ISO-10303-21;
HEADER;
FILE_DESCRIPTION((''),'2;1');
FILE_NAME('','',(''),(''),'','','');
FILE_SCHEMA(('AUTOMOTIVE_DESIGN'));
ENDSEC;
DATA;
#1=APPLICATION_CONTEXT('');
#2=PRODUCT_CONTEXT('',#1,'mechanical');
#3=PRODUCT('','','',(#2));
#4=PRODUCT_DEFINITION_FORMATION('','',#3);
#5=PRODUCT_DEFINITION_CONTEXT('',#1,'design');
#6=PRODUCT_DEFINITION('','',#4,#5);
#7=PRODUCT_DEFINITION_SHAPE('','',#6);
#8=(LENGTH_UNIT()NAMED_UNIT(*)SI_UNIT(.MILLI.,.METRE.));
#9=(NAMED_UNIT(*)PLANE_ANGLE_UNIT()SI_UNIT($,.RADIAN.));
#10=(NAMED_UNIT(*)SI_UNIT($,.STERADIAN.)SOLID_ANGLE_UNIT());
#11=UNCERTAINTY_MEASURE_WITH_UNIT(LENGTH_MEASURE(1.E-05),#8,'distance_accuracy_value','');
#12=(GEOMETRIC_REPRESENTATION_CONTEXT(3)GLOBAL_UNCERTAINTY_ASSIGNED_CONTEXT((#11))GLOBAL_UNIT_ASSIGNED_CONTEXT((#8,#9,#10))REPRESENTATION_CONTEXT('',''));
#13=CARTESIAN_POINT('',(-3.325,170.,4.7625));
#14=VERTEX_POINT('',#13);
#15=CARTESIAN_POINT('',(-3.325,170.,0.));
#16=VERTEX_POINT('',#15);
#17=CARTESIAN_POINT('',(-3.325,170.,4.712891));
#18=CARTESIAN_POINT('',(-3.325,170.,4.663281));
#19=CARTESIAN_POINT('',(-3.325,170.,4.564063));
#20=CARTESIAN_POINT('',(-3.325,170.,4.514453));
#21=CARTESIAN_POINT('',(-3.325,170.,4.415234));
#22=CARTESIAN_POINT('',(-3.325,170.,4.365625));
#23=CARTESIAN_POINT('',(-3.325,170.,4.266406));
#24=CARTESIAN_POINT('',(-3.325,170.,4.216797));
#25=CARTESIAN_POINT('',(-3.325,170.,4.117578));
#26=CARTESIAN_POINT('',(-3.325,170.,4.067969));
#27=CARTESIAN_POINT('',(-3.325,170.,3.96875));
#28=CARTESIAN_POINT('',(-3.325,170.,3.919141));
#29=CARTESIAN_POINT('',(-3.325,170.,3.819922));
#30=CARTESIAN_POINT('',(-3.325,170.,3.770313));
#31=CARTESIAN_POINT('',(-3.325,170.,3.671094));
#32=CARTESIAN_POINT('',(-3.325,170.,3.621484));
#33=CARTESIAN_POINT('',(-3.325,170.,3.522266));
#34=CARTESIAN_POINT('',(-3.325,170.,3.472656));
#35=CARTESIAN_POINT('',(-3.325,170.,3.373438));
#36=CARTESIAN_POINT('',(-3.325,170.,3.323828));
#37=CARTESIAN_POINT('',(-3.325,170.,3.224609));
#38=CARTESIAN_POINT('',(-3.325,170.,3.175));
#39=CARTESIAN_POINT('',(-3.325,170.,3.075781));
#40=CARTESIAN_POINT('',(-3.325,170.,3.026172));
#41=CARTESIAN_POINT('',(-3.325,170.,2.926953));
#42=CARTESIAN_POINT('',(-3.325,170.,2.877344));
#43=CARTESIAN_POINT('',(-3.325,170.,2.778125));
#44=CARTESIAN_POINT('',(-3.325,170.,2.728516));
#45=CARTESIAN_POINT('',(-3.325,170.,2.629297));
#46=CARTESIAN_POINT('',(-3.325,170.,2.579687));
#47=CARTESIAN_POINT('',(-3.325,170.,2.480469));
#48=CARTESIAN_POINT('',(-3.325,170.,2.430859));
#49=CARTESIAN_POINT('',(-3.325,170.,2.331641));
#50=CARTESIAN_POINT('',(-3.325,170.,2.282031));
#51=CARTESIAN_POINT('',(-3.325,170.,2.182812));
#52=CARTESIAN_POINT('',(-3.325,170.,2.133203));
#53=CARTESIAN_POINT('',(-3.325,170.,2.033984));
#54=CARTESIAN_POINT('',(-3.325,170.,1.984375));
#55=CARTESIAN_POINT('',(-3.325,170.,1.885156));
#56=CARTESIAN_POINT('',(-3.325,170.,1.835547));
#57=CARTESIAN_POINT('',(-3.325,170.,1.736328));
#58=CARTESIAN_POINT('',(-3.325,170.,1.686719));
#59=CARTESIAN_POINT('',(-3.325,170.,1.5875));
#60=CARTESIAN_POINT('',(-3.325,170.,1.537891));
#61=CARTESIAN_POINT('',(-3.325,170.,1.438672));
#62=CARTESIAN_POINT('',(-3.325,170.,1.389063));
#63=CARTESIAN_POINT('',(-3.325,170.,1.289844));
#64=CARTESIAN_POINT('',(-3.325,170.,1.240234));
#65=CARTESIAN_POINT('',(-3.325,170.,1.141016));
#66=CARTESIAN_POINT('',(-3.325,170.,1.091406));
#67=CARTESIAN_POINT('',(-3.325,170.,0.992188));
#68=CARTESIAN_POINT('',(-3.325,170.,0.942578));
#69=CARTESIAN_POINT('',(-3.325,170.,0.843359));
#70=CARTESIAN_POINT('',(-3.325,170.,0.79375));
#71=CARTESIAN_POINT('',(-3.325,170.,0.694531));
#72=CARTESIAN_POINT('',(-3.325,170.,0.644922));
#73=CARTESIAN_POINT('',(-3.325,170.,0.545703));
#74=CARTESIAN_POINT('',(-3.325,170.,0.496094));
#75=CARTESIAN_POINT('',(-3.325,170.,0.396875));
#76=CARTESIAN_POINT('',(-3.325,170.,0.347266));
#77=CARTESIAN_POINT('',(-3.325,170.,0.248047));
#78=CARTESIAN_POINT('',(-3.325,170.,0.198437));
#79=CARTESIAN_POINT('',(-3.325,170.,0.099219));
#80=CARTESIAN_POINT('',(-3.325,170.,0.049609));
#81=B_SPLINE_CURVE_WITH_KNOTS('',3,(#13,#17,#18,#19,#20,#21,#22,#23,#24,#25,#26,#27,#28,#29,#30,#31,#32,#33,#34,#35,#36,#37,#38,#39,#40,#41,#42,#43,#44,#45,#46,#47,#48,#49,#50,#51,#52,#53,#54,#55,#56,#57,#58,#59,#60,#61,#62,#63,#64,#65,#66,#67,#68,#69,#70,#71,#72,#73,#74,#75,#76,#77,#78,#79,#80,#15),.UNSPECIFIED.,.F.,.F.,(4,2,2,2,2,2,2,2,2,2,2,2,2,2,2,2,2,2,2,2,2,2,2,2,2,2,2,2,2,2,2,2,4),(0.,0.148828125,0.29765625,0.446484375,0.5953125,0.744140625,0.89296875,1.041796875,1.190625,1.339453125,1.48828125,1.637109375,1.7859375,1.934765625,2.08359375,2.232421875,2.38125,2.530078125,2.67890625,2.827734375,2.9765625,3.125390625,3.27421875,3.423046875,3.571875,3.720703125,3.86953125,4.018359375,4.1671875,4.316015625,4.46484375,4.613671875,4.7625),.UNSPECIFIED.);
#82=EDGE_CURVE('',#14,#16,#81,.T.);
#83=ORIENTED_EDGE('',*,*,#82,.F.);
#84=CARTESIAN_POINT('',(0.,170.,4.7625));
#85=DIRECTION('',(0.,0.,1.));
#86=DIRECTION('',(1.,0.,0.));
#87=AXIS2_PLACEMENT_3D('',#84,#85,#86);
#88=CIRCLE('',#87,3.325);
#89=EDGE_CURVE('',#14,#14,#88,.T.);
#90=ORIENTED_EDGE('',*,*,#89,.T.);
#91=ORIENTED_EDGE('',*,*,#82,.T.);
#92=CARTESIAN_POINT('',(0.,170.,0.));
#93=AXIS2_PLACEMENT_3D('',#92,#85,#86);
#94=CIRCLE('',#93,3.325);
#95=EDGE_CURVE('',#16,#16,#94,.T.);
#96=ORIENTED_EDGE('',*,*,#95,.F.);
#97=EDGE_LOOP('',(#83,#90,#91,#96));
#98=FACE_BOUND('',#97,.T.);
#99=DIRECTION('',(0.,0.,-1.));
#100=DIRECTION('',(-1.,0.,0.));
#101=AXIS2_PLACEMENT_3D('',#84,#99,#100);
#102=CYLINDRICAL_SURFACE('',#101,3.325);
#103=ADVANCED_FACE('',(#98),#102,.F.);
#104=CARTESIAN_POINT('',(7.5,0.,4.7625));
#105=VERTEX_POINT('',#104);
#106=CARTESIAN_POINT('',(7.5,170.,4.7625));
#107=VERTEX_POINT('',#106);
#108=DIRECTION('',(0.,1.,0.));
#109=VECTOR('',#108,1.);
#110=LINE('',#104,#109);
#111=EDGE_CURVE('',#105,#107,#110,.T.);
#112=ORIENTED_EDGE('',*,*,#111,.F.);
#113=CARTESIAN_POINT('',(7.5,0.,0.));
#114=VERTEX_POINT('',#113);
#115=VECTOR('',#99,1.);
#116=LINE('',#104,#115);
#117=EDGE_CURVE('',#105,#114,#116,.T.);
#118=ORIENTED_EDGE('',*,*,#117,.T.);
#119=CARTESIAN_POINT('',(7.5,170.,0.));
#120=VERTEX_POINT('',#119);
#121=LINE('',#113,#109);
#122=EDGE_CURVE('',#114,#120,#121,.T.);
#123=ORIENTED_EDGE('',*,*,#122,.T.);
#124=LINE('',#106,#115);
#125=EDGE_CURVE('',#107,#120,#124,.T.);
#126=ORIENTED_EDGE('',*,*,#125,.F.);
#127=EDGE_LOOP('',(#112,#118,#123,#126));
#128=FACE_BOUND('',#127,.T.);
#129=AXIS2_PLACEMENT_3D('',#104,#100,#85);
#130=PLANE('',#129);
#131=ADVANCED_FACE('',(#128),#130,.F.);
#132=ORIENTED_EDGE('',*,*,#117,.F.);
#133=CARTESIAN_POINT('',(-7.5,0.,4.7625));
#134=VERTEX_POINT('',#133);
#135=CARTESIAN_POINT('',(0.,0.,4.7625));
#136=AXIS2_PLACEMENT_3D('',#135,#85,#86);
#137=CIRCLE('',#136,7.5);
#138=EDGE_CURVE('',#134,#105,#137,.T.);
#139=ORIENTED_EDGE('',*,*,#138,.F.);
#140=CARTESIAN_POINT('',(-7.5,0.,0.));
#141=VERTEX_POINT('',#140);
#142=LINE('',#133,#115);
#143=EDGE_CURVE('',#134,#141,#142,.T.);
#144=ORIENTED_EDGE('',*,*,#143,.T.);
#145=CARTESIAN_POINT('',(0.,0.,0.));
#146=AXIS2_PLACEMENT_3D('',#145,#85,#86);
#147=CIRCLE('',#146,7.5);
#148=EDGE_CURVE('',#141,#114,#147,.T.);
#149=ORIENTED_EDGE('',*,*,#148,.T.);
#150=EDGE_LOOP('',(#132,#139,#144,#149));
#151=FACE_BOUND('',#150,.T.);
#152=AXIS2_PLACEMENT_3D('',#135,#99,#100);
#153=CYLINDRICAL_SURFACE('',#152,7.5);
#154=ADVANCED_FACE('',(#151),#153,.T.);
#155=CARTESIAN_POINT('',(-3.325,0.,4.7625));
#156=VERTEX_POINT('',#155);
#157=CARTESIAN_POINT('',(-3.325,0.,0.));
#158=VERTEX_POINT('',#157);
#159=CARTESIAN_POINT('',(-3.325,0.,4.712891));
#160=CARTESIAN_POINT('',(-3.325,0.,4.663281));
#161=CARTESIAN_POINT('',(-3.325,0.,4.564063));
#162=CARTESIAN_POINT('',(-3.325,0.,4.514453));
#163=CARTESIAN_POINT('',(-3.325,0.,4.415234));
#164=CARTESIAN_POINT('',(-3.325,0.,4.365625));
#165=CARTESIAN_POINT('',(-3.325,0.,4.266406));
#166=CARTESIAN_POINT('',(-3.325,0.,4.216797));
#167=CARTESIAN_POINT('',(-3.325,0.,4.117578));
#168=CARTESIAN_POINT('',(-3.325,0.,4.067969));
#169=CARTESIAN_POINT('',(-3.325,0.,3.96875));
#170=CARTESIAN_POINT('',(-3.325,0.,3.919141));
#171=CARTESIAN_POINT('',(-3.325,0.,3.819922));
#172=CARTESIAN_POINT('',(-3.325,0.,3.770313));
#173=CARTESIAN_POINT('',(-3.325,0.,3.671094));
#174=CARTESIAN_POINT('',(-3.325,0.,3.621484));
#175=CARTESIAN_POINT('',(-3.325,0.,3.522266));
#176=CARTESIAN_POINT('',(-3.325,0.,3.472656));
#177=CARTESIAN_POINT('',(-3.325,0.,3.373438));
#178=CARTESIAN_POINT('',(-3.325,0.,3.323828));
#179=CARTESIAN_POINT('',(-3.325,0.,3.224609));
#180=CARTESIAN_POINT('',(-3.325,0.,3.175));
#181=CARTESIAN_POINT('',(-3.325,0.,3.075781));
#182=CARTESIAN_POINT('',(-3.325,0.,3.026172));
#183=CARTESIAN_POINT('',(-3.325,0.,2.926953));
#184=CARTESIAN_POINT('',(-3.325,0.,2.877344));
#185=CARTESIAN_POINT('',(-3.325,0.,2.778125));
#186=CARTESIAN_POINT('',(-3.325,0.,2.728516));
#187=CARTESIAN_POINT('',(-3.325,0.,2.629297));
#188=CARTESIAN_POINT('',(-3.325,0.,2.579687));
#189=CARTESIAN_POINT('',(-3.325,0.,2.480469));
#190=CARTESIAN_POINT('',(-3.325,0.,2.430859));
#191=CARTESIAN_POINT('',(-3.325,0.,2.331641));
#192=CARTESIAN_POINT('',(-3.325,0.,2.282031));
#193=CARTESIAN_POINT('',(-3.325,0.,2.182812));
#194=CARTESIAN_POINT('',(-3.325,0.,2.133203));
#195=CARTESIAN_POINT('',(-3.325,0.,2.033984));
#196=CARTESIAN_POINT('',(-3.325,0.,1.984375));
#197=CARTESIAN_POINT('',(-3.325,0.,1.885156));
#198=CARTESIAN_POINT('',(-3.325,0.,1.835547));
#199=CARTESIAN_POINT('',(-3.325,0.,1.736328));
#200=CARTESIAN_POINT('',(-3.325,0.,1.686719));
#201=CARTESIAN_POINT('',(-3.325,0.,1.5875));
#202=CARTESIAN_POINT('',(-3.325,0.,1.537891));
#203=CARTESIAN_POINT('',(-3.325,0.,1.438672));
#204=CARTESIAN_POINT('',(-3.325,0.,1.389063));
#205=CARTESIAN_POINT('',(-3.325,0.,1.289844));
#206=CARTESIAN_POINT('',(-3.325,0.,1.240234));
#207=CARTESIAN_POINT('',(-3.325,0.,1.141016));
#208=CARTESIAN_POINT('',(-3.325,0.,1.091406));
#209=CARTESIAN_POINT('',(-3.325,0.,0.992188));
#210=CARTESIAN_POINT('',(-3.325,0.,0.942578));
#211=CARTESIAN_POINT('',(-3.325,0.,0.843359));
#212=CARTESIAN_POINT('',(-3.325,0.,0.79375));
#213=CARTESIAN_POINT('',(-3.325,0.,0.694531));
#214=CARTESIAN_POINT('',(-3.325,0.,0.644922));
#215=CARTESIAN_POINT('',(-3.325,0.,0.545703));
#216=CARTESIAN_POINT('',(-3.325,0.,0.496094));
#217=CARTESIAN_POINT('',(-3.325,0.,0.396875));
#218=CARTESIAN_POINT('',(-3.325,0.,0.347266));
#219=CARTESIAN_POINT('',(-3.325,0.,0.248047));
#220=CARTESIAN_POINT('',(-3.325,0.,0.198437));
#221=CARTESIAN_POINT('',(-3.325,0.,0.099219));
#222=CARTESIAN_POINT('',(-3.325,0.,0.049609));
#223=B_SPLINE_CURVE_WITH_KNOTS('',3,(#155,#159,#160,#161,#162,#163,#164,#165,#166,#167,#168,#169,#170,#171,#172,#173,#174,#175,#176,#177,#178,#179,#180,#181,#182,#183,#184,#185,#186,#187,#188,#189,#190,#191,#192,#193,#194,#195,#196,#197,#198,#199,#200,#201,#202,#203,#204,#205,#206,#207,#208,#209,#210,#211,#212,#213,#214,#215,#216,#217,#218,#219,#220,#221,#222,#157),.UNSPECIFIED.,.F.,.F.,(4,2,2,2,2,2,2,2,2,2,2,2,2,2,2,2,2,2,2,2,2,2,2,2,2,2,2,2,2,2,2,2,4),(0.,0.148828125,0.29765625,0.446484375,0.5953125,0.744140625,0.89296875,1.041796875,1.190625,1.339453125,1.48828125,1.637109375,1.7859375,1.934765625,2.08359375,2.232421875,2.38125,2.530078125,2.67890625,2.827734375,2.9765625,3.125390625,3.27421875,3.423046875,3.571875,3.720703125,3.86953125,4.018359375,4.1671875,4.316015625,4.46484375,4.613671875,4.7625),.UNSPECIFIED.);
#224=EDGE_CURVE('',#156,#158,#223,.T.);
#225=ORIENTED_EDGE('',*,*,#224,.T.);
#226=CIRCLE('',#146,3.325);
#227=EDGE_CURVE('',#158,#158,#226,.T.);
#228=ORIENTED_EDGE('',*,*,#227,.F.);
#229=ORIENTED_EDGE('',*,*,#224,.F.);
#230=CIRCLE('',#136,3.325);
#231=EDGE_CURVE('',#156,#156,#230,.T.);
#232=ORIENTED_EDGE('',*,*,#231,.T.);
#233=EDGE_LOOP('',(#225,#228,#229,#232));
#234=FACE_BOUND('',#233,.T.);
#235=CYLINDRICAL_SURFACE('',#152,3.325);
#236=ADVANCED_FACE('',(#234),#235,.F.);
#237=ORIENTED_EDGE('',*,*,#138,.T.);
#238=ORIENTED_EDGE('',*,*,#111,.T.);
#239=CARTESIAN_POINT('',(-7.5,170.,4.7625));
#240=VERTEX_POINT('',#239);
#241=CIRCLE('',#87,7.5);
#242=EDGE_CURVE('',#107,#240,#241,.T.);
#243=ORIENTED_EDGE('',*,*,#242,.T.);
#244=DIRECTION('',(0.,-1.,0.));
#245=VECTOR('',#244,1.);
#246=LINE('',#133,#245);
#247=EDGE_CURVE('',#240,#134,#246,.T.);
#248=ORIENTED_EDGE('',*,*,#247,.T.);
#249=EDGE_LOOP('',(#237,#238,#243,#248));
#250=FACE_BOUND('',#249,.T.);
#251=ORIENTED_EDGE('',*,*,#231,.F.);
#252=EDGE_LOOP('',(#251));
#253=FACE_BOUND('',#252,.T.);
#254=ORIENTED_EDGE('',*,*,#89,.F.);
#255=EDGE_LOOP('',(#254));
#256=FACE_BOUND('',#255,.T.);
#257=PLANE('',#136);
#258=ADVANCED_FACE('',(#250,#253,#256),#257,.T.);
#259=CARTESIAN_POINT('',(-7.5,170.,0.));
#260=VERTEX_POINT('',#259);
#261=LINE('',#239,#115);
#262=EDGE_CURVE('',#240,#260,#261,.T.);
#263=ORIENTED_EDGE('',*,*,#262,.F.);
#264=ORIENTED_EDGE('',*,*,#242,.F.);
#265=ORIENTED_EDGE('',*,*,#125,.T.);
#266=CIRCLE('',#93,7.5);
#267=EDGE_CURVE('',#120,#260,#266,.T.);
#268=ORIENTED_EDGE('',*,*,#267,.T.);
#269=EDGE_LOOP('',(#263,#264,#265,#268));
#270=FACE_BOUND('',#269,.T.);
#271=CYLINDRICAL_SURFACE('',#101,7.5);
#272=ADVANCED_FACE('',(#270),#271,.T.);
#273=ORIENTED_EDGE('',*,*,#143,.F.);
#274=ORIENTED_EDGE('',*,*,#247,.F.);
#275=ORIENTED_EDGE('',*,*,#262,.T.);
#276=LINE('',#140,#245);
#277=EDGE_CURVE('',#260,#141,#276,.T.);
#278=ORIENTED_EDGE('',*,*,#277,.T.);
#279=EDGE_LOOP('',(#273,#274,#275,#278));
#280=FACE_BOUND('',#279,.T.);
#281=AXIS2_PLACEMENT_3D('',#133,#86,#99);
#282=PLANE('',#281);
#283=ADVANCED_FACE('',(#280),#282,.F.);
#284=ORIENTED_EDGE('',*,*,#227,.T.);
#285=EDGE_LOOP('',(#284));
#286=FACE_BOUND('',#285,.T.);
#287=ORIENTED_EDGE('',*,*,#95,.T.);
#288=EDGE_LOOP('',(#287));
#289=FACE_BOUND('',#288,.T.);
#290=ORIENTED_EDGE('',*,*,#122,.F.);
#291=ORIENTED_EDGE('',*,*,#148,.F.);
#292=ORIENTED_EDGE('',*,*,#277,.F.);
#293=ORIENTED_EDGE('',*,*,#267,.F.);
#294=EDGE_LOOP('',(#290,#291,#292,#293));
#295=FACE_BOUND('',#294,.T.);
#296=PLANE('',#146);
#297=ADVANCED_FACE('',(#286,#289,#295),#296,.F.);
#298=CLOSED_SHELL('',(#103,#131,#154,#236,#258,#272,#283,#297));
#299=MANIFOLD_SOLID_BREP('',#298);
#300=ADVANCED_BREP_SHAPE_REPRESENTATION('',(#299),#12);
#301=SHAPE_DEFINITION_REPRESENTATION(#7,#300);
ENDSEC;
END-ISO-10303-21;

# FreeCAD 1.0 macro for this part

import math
import FreeCAD as App
import Part
import Sketcher
from FreeCAD import Vector
Q = App.Units.Quantity

doc = App.newDocument("Part")
body = doc.addObject("PartDesign::Body", "Body")

sketch1 = body.newObject("Sketcher::SketchObject", "Sketch")
sketch1.AttachmentSupport = (doc.getObject("XY_Plane"), [""])
sketch1.MapMode = "FlatFace"
sketch1.addGeometry(Part.LineSegment(Vector(-7.5, 170, 0), Vector(-7.5, 0, 0)), False)
sketch1.addGeometry(Part.ArcOfCircle(Part.Circle(Vector(0, 0, 0), Vector(0, 0, 1), 7.5), math.radians(180), math.radians(360)), False)
sketch1.addGeometry(Part.LineSegment(Vector(7.5, 0, 0), Vector(7.5, 170, 0)), False)
sketch1.addGeometry(Part.ArcOfCircle(Part.Circle(Vector(0, 170, 0), Vector(0, 0, 1), 7.5), math.radians(0), math.radians(180)), False)
sketch1.addGeometry(Part.Circle(Vector(0, 0, 0), Vector(0, 0, 1), 3.3), False)
sketch1.addGeometry(Part.Circle(Vector(0, 170, 0), Vector(0, 0, 1), 3.3), False)
sketch1.addConstraint(Sketcher.Constraint("Tangent", 0, 2, 1, 1))
sketch1.addConstraint(Sketcher.Constraint("Tangent", 1, 2, 2, 1))
sketch1.addConstraint(Sketcher.Constraint("Tangent", 2, 2, 3, 1))
sketch1.addConstraint(Sketcher.Constraint("Tangent", 3, 2, 0, 1))
sketch1.addConstraint(Sketcher.Constraint("Vertical", 0))
sketch1.addConstraint(Sketcher.Constraint("Vertical", 2))
sketch1.addConstraint(Sketcher.Constraint("Coincident", 1, 3, -1, 1))
sketch1.addConstraint(Sketcher.Constraint("Coincident", 4, 3, -1, 1))
sketch1.addConstraint(Sketcher.Constraint("Coincident", 5, 3, 3, 3))
sketch1.addConstraint(Sketcher.Constraint("Equal", 4, 5))
sketch1.addConstraint(Sketcher.Constraint("Radius", 1, Q("7.5 mm")))
sketch1.addConstraint(Sketcher.Constraint("Diameter", 4, Q("6.65 mm")))
sketch1.addConstraint(Sketcher.Constraint("DistanceY", 0, 2, 0, 1, Q("170 mm")))
pad1 = body.newObject("PartDesign::Pad", "Pad")
pad1.Profile = sketch1
pad1.Length = 4.7625

doc.recompute()
